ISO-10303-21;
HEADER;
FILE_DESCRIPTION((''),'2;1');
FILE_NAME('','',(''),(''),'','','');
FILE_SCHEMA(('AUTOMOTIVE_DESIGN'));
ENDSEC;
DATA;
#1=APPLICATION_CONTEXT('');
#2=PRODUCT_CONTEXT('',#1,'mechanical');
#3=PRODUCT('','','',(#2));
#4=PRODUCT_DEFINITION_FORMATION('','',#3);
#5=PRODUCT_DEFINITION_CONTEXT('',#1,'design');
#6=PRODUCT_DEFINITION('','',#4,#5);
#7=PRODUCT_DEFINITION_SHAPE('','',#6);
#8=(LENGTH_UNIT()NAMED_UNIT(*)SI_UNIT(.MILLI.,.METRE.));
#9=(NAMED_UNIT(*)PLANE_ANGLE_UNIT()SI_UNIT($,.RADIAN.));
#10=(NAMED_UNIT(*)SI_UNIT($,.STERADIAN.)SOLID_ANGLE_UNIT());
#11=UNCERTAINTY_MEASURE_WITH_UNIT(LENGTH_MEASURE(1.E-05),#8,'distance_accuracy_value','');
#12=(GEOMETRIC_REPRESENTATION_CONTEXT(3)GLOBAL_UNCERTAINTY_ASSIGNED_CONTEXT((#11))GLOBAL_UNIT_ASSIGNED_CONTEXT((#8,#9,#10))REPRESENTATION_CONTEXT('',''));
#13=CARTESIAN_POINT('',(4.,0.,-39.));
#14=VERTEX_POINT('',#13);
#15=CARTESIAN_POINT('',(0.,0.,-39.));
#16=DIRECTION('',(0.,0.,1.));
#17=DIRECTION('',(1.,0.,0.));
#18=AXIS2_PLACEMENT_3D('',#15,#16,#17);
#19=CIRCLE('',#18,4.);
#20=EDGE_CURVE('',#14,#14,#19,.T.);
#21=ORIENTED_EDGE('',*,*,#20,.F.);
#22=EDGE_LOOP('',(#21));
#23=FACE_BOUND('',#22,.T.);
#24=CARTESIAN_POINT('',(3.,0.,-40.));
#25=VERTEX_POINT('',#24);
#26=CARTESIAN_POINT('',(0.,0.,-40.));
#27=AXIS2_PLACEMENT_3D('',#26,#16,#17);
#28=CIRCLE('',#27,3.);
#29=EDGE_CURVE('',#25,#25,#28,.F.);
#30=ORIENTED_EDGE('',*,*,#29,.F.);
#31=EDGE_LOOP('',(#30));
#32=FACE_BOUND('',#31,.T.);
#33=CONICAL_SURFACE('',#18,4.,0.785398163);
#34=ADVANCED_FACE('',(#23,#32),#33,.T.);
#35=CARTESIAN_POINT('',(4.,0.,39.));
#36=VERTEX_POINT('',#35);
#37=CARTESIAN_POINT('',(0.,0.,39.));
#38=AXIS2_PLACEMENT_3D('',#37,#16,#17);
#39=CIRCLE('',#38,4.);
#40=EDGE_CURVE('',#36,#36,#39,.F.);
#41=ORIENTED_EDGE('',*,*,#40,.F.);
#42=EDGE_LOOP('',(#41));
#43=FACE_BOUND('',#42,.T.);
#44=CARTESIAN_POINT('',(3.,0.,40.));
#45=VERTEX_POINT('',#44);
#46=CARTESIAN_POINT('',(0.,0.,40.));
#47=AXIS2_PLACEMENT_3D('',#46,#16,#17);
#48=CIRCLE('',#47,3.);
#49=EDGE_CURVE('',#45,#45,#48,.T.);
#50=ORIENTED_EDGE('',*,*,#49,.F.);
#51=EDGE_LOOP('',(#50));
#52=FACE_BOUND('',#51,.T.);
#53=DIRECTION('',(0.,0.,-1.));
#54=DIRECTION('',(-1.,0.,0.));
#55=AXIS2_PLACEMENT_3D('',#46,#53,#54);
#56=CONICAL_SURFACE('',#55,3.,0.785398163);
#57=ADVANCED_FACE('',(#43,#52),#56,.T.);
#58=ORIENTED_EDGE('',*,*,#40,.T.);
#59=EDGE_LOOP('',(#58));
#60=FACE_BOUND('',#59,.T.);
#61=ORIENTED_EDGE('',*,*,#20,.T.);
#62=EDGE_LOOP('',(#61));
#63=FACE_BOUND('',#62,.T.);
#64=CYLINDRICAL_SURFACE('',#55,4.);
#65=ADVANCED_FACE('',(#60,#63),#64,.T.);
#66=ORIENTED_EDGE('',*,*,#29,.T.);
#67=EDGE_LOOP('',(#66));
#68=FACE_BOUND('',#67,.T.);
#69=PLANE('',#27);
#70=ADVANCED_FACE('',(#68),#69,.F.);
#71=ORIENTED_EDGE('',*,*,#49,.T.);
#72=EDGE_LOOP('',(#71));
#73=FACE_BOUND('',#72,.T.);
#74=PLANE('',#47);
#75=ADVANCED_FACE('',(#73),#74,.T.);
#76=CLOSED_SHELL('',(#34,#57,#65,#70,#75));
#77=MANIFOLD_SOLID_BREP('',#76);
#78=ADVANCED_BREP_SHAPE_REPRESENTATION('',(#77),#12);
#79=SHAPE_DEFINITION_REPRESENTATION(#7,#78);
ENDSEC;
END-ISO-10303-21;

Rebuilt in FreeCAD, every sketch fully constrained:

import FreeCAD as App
import Part
import Sketcher
from FreeCAD import Vector
Q = App.Units.Quantity


def edges_at(feature, points):
    """Names of the edges that pass closest to the given points."""
    edges = feature.Shape.Edges
    near = lambda p: min(range(len(edges)), key=lambda i: edges[i].distToShape(Part.Vertex(*p))[0])
    return sorted({f"Edge{near(p) + 1}" for p in points})

doc = App.newDocument("Part")
body = doc.addObject("PartDesign::Body", "Body")

sketch1 = body.newObject("Sketcher::SketchObject", "Sketch")
sketch1.AttachmentSupport = (doc.getObject("XY_Plane"), [""])
sketch1.MapMode = "FlatFace"
sketch1.addGeometry(Part.Circle(Vector(0, 0, 0), Vector(0, 0, 1), 4), False)
sketch1.addConstraint([
    Sketcher.Constraint("Coincident", 0, 3, -1, 1),
    Sketcher.Constraint("Diameter", 0, Q("8 mm")),
])
pad1 = body.newObject("PartDesign::Pad", "Pad")
pad1.Profile = sketch1
pad1.Length = 80
pad1.Midplane = True
doc.recompute()

chamfer = body.newObject("PartDesign::Chamfer", "Chamfer")
chamfer.Base = (pad1, edges_at(pad1, [(-4, 0, -40), (-4, 0, 40)]))
chamfer.Size = 1

doc.recompute()
